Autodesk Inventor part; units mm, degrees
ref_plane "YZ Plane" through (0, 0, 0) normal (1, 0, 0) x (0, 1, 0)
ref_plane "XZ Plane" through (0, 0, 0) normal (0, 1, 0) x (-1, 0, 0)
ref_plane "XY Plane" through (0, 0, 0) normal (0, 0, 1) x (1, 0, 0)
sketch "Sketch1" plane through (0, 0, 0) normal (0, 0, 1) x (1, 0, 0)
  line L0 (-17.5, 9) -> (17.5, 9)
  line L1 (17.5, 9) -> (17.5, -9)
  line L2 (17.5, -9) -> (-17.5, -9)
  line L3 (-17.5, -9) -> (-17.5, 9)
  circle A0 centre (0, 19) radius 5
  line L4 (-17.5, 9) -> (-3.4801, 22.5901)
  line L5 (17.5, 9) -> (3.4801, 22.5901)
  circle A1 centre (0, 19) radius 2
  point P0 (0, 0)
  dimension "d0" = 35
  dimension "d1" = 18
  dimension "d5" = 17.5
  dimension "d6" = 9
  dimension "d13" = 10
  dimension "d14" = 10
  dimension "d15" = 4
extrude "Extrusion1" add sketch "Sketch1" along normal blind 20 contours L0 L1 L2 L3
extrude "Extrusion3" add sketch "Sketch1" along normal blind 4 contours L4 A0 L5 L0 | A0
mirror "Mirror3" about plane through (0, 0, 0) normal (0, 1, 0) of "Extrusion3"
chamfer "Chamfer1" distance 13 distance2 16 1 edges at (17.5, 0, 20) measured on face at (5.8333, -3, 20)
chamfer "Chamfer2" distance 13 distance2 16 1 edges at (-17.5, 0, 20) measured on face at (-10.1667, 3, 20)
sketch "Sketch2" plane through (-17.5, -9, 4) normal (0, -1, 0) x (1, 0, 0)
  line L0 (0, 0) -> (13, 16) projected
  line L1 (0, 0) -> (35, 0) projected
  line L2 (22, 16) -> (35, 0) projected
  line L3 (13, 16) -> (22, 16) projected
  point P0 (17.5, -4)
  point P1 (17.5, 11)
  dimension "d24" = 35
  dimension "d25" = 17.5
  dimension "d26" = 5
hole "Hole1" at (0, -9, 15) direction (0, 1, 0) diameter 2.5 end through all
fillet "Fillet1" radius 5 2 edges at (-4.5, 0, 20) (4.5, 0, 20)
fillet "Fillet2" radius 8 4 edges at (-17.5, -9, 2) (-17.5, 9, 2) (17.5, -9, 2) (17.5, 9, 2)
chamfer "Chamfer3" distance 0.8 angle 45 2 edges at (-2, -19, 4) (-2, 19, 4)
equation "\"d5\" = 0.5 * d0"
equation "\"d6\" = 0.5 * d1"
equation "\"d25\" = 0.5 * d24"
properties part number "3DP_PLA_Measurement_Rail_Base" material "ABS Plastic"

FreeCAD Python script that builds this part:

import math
import FreeCAD as App
import Part
import Sketcher
from FreeCAD import Vector
Q = App.Units.Quantity


def edges_at(feature, points):
    """Names of the edges that pass closest to the given points."""
    edges = feature.Shape.Edges
    near = lambda p: min(range(len(edges)), key=lambda i: edges[i].distToShape(Part.Vertex(*p))[0])
    return sorted({f"Edge{near(p) + 1}" for p in points})


def add_polygon(sketch, points):
    """Adds a closed chain of lines whose ends are joined by coincident constraints."""
    first, n = sketch.GeometryCount, len(points)
    for a, b in zip(points, points[1:] + points[:1]):
        sketch.addGeometry(Part.LineSegment(App.Vector(*a, 0), App.Vector(*b, 0)), False)
    for i in range(n):
        sketch.addConstraint(Sketcher.Constraint("Coincident", first + i, 2, first + (i + 1) % n, 1))

doc = App.newDocument("Part")
params = doc.addObject("Spreadsheet::Sheet", "Params")
for row, (alias, value) in enumerate([
    ("sketch1_width", "35 mm"),
    ("sketch1_height", "18 mm"),
    ("pad1_length", "20 mm"),
    ("sketch2_diameter", "4 mm"),
    ("sketch2_radius", "5 mm"),
    ("sketch2_width", "35 mm"),
    ("pad2_length", "4 mm"),
    ("chamfer_size", "13 mm"),
    ("chamfer_size2", "16 mm"),
    ("chamfer2_size", "13 mm"),
    ("chamfer2_size2", "16 mm"),
    ("sketch3_diameter", "2.5 mm"),
    ("hole_diameter", "2.5 mm"),
    ("fillet_radius", "5 mm"),
    ("fillet2_radius", "8 mm"),
    ("chamfer3_size", "0.8 mm"),
], start=1):
    params.set(f"A{row}", alias)
    params.set(f"B{row}", "=" + value)
    params.setAlias(f"B{row}", alias)

body = doc.addObject("PartDesign::Body", "Body")

# Sketch on XY plane
sketch1 = body.newObject("Sketcher::SketchObject", "Sketch")
sketch1.AttachmentSupport = (doc.getObject("XY_Plane"), [""])
sketch1.MapMode = "FlatFace"
add_polygon(sketch1, [(18, 9), (-18, 9), (-18, -9), (18, -9)])  # lines 0-3
sketch1.addConstraint(Sketcher.Constraint("Horizontal", 0))
sketch1.addConstraint(Sketcher.Constraint("Vertical", 1))
sketch1.addConstraint(Sketcher.Constraint("Horizontal", 2))
sketch1.addConstraint(Sketcher.Constraint("Vertical", 3))
sketch1.addConstraint(Sketcher.Constraint("Symmetric", 0, 2, 2, 2, -1, 1))
sketch1.addConstraint(Sketcher.Constraint("DistanceX", 0, 2, 0, 1, Q("35 mm")))
sketch1.addConstraint(Sketcher.Constraint("DistanceY", 1, 2, 1, 1, Q("18 mm")))
sketch1.setExpression("Constraints[9]", "Params.sketch1_width")
sketch1.setExpression("Constraints[10]", "Params.sketch1_height")
pad1 = body.newObject("PartDesign::Pad", "Pad")
pad1.Profile = sketch1
pad1.setExpression("Length", "Params.pad1_length")

# Sketch on XY plane
sketch2 = body.newObject("Sketcher::SketchObject", "Sketch001")
sketch2.AttachmentSupport = (doc.getObject("XY_Plane"), [""])
sketch2.MapMode = "FlatFace"
sketch2.addGeometry(Part.LineSegment(Vector(-3.5, 22.6, 0), Vector(-17.5, 9, 0)), False)
sketch2.addGeometry(Part.LineSegment(Vector(-17.5, 9, 0), Vector(17.5, 9, 0)), False)
sketch2.addGeometry(Part.LineSegment(Vector(17.5, 9, 0), Vector(3.5, 22.6, 0)), False)
sketch2.addGeometry(Part.ArcOfCircle(Part.Circle(Vector(0, 19, 0), Vector(0, 0, 1), 5), math.radians(46), math.radians(134)), False)
sketch2.addGeometry(Part.Circle(Vector(0, 19, 0), Vector(0, 0, 1), 2), False)
sketch2.addConstraint(Sketcher.Constraint("Coincident", 0, 2, 1, 1))
sketch2.addConstraint(Sketcher.Constraint("Coincident", 1, 2, 2, 1))
sketch2.addConstraint(Sketcher.Constraint("Tangent", 2, 2, 3, 1))
sketch2.addConstraint(Sketcher.Constraint("Tangent", 3, 2, 0, 1))
sketch2.addConstraint(Sketcher.Constraint("Horizontal", 1))
sketch2.addConstraint(Sketcher.Constraint("Coincident", 4, 3, 3, 3))
sketch2.addConstraint(Sketcher.Constraint("Symmetric", 2, 2, 3, 2, -2))
sketch2.addConstraint(Sketcher.Constraint("Diameter", 4, Q("4 mm")))
sketch2.addConstraint(Sketcher.Constraint("Radius", 3, Q("5 mm")))
sketch2.addConstraint(Sketcher.Constraint("DistanceX", 1, 1, 1, 2, Q("35 mm")))
sketch2.addConstraint(Sketcher.Constraint("DistanceY", -1, 1, 0, 2, Q("9 mm")))
sketch2.addConstraint(Sketcher.Constraint("DistanceY", 0, 2, 3, 3, Q("10 mm")))
sketch2.setExpression("Constraints[7]", "Params.sketch2_diameter")
sketch2.setExpression("Constraints[8]", "Params.sketch2_radius")
sketch2.setExpression("Constraints[9]", "Params.sketch2_width")
pad2 = body.newObject("PartDesign::Pad", "Pad001")
pad2.Profile = sketch2
pad2.setExpression("Length", "Params.pad2_length")
doc.recompute()

mirrored = body.newObject("PartDesign::Mirrored", "Mirrored")
mirrored.Originals = [pad2]
mirrored.MirrorPlane = (doc.getObject("XZ_Plane"), [""])
body.Tip = mirrored
doc.recompute()

chamfer = body.newObject("PartDesign::Chamfer", "Chamfer")
chamfer.Base = (mirrored, edges_at(mirrored, [(17.5, 0, 20)]))
chamfer.ChamferType = "Two distances"
chamfer.setExpression("Size", "Params.chamfer_size")
chamfer.setExpression("Size2", "Params.chamfer_size2")
doc.recompute()

chamfer2 = body.newObject("PartDesign::Chamfer", "Chamfer001")
chamfer2.Base = (chamfer, edges_at(chamfer, [(-17.5, 0, 20)]))
chamfer2.ChamferType = "Two distances"
chamfer2.setExpression("Size", "Params.chamfer2_size")
chamfer2.setExpression("Size2", "Params.chamfer2_size2")

# Sketch on XZ plane
sketch3 = body.newObject("Sketcher::SketchObject", "Sketch002")
sketch3.AttachmentSupport = (doc.getObject("XZ_Plane"), [""])
sketch3.MapMode = "FlatFace"
sketch3.AttachmentOffset = App.Placement(Vector(0, 0, 9), App.Rotation())
sketch3.addGeometry(Part.Circle(Vector(0, 15, 0), Vector(0, 0, 1), 1.2), False)
sketch3.addConstraint(Sketcher.Constraint("PointOnObject", 0, 3, -2))
sketch3.addConstraint(Sketcher.Constraint("Diameter", 0, Q("2.5 mm")))
sketch3.addConstraint(Sketcher.Constraint("DistanceY", -1, 1, 0, 3, Q("15 mm")))
sketch3.setExpression("Constraints[1]", "Params.sketch3_diameter")
doc.recompute()
hole = body.newObject("PartDesign::Hole", "Hole")
hole.Profile = sketch3
hole.ThreadType = "None"
hole.setExpression("Diameter", "Params.hole_diameter")
hole.DepthType = "ThroughAll"
doc.recompute()

fillet = body.newObject("PartDesign::Fillet", "Fillet")
fillet.Base = (hole, edges_at(hole, [(-4.5, 0, 20), (4.5, 0, 20)]))
fillet.setExpression("Radius", "Params.fillet_radius")
doc.recompute()

fillet2 = body.newObject("PartDesign::Fillet", "Fillet001")
fillet2.Base = (fillet, edges_at(fillet, [
    (-17.5, -9, 2),
    (-17.5, 9, 2),
    (17.5, -9, 2),
    (17.5, 9, 2),
]))
fillet2.setExpression("Radius", "Params.fillet2_radius")
doc.recompute()

chamfer3 = body.newObject("PartDesign::Chamfer", "Chamfer002")
chamfer3.Base = (fillet2, edges_at(fillet2, [(-2, -19, 4), (-2, 19, 4)]))
chamfer3.setExpression("Size", "Params.chamfer3_size")

doc.recompute()
